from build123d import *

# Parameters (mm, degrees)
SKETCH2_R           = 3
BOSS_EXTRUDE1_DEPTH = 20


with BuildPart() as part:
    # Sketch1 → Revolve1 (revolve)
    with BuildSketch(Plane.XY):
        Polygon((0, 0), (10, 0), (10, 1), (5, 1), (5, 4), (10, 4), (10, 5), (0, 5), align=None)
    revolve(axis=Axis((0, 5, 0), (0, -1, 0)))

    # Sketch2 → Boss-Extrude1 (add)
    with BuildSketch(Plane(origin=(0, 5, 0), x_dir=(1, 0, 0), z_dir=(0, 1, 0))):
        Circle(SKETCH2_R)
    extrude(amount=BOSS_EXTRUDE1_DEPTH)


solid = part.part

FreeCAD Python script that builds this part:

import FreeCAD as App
import Part
import Sketcher

doc = App.newDocument("Part")
body = doc.addObject("PartDesign::Body", "Body")

# Sketch on XY plane
sketch1 = doc.addObject("Sketcher::SketchObject", "Sketch")
body.addObject(sketch1)
sketch1.AttachmentSupport = (doc.XY_Plane, [""])
sketch1.MapMode = "FlatFace"
sketch1.addGeometry([
    Part.LineSegment(App.Vector(0, 0, 0), App.Vector(10, 0, 0)),  # 0
    Part.LineSegment(App.Vector(10, 0, 0), App.Vector(10, 1, 0)),  # 1
    Part.LineSegment(App.Vector(10, 1, 0), App.Vector(5, 1, 0)),  # 2
    Part.LineSegment(App.Vector(5, 1, 0), App.Vector(5, 4, 0)),  # 3
    Part.LineSegment(App.Vector(5, 4, 0), App.Vector(10, 4, 0)),  # 4
    Part.LineSegment(App.Vector(10, 4, 0), App.Vector(10, 5, 0)),  # 5
    Part.LineSegment(App.Vector(10, 5, 0), App.Vector(0, 5, 0)),  # 6
    Part.LineSegment(App.Vector(0, 5, 0), App.Vector(0, 0, 0)),  # 7
], False)
sketch1.addConstraint([
    Sketcher.Constraint("Coincident", 0, 2, 1, 1),
    Sketcher.Constraint("Coincident", 1, 2, 2, 1),
    Sketcher.Constraint("Coincident", 2, 2, 3, 1),
    Sketcher.Constraint("Coincident", 3, 2, 4, 1),
    Sketcher.Constraint("Coincident", 4, 2, 5, 1),
    Sketcher.Constraint("Coincident", 5, 2, 6, 1),
    Sketcher.Constraint("Coincident", 6, 2, 7, 1),
    Sketcher.Constraint("Coincident", 7, 2, 0, 1),
    Sketcher.Constraint("Horizontal", 0),
    Sketcher.Constraint("Vertical", 1),
    Sketcher.Constraint("Horizontal", 2),
    Sketcher.Constraint("Vertical", 3),
    Sketcher.Constraint("Horizontal", 4),
    Sketcher.Constraint("Vertical", 5),
    Sketcher.Constraint("Horizontal", 6),
    Sketcher.Constraint("Vertical", 7),
    Sketcher.Constraint("Coincident", 7, 2, -1, 1),
    Sketcher.Constraint("Vertical", 1, 2, 4, 2),
    Sketcher.Constraint("Equal", 1, 5),
    Sketcher.Constraint("Equal", 4, 7),
    Sketcher.Constraint("DistanceX", 0, 1, 0, 2, 10.0),
    Sketcher.Constraint("DistanceX", 2, 2, 2, 1, 5.0),
    Sketcher.Constraint("DistanceY", 1, 1, 1, 2, 1.0),
])
revolution = doc.addObject("PartDesign::Revolution", "Revolution")
body.addObject(revolution)
revolution.Profile = sketch1
revolution.ReferenceAxis = (sketch1, ["V_Axis"])
revolution.Angle = 360

# Sketch on XZ plane
sketch2 = doc.addObject("Sketcher::SketchObject", "Sketch001")
body.addObject(sketch2)
sketch2.AttachmentSupport = (doc.XZ_Plane, [""])
sketch2.MapMode = "FlatFace"
sketch2.AttachmentOffset = App.Placement(App.Vector(0, 0, -5), App.Rotation())
sketch2.addGeometry(Part.Circle(App.Vector(0, 0, 0), App.Vector(0, 0, 1), 3), False)
sketch2.addConstraint([
    Sketcher.Constraint("Coincident", 0, 3, -1, 1),
    Sketcher.Constraint("Diameter", 0, 6.0),
])
pad1 = doc.addObject("PartDesign::Pad", "Pad")
body.addObject(pad1)
pad1.Profile = sketch2
pad1.Length = 20
pad1.Reversed = True

doc.recompute()
